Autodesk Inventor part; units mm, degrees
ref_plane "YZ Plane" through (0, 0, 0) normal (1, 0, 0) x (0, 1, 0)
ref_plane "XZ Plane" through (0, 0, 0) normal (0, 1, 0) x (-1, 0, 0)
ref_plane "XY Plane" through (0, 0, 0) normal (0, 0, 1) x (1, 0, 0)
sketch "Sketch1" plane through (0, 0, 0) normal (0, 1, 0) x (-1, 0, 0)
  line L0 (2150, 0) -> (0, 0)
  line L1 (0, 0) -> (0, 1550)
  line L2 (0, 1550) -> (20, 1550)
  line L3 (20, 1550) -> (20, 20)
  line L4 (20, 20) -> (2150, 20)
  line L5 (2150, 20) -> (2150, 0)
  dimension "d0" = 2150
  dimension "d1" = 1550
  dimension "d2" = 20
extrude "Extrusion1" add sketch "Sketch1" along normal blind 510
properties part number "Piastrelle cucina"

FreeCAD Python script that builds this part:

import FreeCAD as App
import Part
import Sketcher

V = App.Vector
Q = App.Units.Quantity

doc = App.newDocument("Part")
body = doc.addObject("PartDesign::Body", "Body")

# Sketch on XZ plane
sketch1 = body.newObject("Sketcher::SketchObject", "Sketch")
sketch1.AttachmentSupport = (doc.getObject("XZ_Plane"), [""])
sketch1.MapMode = "FlatFace"
sketch1.addGeometry([
    Part.LineSegment(V(0, 0, 0), V(-2150, 0, 0)),  # 0
    Part.LineSegment(V(-2150, 0, 0), V(-2150, 20, 0)),  # 1
    Part.LineSegment(V(-2150, 20, 0), V(-20, 20, 0)),  # 2
    Part.LineSegment(V(-20, 20, 0), V(-20, 1550, 0)),  # 3
    Part.LineSegment(V(-20, 1550, 0), V(0, 1550, 0)),  # 4
    Part.LineSegment(V(0, 1550, 0), V(0, 0, 0)),  # 5
], False)
sketch1.addConstraint([
    Sketcher.Constraint("Coincident", 0, 2, 1, 1),
    Sketcher.Constraint("Coincident", 1, 2, 2, 1),
    Sketcher.Constraint("Coincident", 2, 2, 3, 1),
    Sketcher.Constraint("Coincident", 3, 2, 4, 1),
    Sketcher.Constraint("Coincident", 4, 2, 5, 1),
    Sketcher.Constraint("Coincident", 5, 2, 0, 1),
    Sketcher.Constraint("Horizontal", 0),
    Sketcher.Constraint("Vertical", 1),
    Sketcher.Constraint("Horizontal", 2),
    Sketcher.Constraint("Vertical", 3),
    Sketcher.Constraint("Horizontal", 4),
    Sketcher.Constraint("Vertical", 5),
    Sketcher.Constraint("Coincident", 5, 2, -1, 1),
    Sketcher.Constraint("Equal", 4, 1),
    Sketcher.Constraint("DistanceX", 0, 2, 0, 1, Q("2150 mm")),
    Sketcher.Constraint("DistanceX", 4, 1, 4, 2, Q("20 mm")),
    Sketcher.Constraint("DistanceY", 5, 2, 5, 1, Q("1550 mm")),
])
pad1 = body.newObject("PartDesign::Pad", "Pad")
pad1.Profile = sketch1
pad1.Length = 510
pad1.Reversed = True

doc.recompute()
